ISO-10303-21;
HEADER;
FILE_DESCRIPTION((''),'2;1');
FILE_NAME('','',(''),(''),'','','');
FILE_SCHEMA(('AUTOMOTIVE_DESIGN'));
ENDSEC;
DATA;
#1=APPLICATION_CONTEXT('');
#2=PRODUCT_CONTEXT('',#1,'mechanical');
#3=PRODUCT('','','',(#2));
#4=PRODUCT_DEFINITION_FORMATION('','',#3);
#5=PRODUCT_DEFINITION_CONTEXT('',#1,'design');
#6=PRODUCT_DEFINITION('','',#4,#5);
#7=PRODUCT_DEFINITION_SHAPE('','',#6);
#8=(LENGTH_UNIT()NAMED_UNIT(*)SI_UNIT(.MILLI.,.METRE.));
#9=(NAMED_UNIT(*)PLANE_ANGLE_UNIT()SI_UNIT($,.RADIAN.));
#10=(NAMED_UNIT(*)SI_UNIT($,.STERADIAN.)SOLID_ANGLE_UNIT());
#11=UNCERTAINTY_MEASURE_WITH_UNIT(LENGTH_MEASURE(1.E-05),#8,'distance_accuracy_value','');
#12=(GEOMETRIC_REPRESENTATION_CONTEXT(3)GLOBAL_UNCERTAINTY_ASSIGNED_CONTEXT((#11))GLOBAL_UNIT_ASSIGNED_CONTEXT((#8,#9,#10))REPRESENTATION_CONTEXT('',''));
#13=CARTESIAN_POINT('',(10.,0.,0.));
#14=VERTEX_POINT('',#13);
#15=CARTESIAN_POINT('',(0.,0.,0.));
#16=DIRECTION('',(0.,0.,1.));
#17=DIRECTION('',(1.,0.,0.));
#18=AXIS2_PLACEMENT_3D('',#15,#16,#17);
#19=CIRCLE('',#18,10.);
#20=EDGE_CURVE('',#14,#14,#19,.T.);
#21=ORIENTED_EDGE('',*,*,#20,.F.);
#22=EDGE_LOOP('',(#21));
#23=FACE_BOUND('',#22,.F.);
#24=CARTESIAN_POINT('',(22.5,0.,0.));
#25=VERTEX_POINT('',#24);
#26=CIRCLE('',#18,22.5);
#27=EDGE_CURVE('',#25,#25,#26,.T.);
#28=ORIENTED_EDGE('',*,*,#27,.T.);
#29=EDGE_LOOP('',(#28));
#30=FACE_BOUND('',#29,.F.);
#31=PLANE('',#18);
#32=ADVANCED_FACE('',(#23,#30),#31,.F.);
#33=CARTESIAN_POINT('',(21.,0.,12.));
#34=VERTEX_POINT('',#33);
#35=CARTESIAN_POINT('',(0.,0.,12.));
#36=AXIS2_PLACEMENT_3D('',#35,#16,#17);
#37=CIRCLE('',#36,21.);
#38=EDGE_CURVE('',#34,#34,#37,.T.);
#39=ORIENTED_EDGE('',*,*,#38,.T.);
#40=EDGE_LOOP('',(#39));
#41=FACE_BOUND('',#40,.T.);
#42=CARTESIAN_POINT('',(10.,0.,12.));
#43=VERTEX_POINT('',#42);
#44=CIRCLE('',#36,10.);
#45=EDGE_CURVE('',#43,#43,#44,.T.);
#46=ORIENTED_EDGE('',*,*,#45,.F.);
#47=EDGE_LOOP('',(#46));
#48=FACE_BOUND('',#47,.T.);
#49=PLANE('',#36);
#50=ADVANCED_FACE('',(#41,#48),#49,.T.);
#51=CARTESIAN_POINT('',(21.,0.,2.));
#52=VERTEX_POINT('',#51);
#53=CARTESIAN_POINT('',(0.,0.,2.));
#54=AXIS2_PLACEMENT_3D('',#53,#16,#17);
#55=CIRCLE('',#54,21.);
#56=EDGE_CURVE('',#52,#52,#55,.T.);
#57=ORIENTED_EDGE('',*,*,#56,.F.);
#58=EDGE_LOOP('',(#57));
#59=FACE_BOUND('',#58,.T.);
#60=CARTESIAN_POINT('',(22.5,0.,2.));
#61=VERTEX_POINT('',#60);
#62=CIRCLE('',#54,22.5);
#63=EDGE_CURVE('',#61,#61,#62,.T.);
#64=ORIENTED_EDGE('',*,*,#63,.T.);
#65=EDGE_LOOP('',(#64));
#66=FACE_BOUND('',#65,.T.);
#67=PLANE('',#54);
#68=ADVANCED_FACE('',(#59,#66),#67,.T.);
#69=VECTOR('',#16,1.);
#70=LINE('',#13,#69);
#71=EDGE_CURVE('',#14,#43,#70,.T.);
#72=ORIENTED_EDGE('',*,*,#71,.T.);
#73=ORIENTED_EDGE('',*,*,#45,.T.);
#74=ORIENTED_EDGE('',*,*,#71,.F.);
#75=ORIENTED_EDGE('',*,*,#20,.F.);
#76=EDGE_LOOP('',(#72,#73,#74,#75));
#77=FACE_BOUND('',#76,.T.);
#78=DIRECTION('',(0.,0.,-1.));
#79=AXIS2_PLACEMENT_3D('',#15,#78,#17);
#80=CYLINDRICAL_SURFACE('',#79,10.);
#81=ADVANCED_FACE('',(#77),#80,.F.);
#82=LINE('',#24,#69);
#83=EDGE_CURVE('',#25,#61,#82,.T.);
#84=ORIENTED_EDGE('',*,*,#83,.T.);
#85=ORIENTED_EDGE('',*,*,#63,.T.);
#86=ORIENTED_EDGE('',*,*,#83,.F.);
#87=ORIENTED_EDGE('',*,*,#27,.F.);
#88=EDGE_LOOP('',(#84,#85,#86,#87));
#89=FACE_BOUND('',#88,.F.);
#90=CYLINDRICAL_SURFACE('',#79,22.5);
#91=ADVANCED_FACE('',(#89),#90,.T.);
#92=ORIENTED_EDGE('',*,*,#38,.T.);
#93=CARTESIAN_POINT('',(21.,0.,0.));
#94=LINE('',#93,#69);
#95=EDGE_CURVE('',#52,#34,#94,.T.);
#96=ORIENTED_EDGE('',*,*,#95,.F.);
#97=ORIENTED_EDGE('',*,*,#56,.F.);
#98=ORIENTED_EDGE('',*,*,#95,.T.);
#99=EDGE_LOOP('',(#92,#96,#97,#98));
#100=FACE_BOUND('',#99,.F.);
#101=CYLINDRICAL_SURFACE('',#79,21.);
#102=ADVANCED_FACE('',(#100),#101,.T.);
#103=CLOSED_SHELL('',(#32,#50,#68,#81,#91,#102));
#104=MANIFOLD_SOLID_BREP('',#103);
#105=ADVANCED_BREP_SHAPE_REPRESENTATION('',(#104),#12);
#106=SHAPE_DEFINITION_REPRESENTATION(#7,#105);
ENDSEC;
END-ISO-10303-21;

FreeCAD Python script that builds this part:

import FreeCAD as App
import Part
import Sketcher

V = App.Vector
Q = App.Units.Quantity

doc = App.newDocument("Part")
body = doc.addObject("PartDesign::Body", "Body")

# Sketch on XY plane
sketch1 = doc.addObject("Sketcher::SketchObject", "Sketch")
body.addObject(sketch1)
sketch1.AttachmentSupport = (doc.XY_Plane, [""])
sketch1.MapMode = "FlatFace"
sketch1.addGeometry([
    Part.Circle(V(0, 0, 0), V(0, 0, 1), 21),
    Part.Circle(V(0, 0, 0), V(0, 0, 1), 10),
], False)
sketch1.addConstraint([
    Sketcher.Constraint("Coincident", 0, 3, -1, 1),
    Sketcher.Constraint("Coincident", 1, 3, -1, 1),
    Sketcher.Constraint("Diameter", 0, Q("42 mm")),
    Sketcher.Constraint("Diameter", 1, Q("20 mm")),
])
pad1 = doc.addObject("PartDesign::Pad", "Pad")
body.addObject(pad1)
pad1.Profile = sketch1
pad1.Length = 12

# Sketch on XY plane
sketch2 = doc.addObject("Sketcher::SketchObject", "Sketch001")
body.addObject(sketch2)
sketch2.AttachmentSupport = (doc.XY_Plane, [""])
sketch2.MapMode = "FlatFace"
sketch2.addGeometry([
    Part.Circle(V(0, 0, 0), V(0, 0, 1), 22.5),
    Part.Circle(V(0, 0, 0), V(0, 0, 1), 21),
], False)
sketch2.addConstraint([
    Sketcher.Constraint("Coincident", 0, 3, -1, 1),
    Sketcher.Constraint("Coincident", 1, 3, -1, 1),
    Sketcher.Constraint("Diameter", 1, Q("42 mm")),
    Sketcher.Constraint("Diameter", 0, Q("45 mm")),
])
pad2 = doc.addObject("PartDesign::Pad", "Pad001")
body.addObject(pad2)
pad2.Profile = sketch2
pad2.Length = 2

doc.recompute()
